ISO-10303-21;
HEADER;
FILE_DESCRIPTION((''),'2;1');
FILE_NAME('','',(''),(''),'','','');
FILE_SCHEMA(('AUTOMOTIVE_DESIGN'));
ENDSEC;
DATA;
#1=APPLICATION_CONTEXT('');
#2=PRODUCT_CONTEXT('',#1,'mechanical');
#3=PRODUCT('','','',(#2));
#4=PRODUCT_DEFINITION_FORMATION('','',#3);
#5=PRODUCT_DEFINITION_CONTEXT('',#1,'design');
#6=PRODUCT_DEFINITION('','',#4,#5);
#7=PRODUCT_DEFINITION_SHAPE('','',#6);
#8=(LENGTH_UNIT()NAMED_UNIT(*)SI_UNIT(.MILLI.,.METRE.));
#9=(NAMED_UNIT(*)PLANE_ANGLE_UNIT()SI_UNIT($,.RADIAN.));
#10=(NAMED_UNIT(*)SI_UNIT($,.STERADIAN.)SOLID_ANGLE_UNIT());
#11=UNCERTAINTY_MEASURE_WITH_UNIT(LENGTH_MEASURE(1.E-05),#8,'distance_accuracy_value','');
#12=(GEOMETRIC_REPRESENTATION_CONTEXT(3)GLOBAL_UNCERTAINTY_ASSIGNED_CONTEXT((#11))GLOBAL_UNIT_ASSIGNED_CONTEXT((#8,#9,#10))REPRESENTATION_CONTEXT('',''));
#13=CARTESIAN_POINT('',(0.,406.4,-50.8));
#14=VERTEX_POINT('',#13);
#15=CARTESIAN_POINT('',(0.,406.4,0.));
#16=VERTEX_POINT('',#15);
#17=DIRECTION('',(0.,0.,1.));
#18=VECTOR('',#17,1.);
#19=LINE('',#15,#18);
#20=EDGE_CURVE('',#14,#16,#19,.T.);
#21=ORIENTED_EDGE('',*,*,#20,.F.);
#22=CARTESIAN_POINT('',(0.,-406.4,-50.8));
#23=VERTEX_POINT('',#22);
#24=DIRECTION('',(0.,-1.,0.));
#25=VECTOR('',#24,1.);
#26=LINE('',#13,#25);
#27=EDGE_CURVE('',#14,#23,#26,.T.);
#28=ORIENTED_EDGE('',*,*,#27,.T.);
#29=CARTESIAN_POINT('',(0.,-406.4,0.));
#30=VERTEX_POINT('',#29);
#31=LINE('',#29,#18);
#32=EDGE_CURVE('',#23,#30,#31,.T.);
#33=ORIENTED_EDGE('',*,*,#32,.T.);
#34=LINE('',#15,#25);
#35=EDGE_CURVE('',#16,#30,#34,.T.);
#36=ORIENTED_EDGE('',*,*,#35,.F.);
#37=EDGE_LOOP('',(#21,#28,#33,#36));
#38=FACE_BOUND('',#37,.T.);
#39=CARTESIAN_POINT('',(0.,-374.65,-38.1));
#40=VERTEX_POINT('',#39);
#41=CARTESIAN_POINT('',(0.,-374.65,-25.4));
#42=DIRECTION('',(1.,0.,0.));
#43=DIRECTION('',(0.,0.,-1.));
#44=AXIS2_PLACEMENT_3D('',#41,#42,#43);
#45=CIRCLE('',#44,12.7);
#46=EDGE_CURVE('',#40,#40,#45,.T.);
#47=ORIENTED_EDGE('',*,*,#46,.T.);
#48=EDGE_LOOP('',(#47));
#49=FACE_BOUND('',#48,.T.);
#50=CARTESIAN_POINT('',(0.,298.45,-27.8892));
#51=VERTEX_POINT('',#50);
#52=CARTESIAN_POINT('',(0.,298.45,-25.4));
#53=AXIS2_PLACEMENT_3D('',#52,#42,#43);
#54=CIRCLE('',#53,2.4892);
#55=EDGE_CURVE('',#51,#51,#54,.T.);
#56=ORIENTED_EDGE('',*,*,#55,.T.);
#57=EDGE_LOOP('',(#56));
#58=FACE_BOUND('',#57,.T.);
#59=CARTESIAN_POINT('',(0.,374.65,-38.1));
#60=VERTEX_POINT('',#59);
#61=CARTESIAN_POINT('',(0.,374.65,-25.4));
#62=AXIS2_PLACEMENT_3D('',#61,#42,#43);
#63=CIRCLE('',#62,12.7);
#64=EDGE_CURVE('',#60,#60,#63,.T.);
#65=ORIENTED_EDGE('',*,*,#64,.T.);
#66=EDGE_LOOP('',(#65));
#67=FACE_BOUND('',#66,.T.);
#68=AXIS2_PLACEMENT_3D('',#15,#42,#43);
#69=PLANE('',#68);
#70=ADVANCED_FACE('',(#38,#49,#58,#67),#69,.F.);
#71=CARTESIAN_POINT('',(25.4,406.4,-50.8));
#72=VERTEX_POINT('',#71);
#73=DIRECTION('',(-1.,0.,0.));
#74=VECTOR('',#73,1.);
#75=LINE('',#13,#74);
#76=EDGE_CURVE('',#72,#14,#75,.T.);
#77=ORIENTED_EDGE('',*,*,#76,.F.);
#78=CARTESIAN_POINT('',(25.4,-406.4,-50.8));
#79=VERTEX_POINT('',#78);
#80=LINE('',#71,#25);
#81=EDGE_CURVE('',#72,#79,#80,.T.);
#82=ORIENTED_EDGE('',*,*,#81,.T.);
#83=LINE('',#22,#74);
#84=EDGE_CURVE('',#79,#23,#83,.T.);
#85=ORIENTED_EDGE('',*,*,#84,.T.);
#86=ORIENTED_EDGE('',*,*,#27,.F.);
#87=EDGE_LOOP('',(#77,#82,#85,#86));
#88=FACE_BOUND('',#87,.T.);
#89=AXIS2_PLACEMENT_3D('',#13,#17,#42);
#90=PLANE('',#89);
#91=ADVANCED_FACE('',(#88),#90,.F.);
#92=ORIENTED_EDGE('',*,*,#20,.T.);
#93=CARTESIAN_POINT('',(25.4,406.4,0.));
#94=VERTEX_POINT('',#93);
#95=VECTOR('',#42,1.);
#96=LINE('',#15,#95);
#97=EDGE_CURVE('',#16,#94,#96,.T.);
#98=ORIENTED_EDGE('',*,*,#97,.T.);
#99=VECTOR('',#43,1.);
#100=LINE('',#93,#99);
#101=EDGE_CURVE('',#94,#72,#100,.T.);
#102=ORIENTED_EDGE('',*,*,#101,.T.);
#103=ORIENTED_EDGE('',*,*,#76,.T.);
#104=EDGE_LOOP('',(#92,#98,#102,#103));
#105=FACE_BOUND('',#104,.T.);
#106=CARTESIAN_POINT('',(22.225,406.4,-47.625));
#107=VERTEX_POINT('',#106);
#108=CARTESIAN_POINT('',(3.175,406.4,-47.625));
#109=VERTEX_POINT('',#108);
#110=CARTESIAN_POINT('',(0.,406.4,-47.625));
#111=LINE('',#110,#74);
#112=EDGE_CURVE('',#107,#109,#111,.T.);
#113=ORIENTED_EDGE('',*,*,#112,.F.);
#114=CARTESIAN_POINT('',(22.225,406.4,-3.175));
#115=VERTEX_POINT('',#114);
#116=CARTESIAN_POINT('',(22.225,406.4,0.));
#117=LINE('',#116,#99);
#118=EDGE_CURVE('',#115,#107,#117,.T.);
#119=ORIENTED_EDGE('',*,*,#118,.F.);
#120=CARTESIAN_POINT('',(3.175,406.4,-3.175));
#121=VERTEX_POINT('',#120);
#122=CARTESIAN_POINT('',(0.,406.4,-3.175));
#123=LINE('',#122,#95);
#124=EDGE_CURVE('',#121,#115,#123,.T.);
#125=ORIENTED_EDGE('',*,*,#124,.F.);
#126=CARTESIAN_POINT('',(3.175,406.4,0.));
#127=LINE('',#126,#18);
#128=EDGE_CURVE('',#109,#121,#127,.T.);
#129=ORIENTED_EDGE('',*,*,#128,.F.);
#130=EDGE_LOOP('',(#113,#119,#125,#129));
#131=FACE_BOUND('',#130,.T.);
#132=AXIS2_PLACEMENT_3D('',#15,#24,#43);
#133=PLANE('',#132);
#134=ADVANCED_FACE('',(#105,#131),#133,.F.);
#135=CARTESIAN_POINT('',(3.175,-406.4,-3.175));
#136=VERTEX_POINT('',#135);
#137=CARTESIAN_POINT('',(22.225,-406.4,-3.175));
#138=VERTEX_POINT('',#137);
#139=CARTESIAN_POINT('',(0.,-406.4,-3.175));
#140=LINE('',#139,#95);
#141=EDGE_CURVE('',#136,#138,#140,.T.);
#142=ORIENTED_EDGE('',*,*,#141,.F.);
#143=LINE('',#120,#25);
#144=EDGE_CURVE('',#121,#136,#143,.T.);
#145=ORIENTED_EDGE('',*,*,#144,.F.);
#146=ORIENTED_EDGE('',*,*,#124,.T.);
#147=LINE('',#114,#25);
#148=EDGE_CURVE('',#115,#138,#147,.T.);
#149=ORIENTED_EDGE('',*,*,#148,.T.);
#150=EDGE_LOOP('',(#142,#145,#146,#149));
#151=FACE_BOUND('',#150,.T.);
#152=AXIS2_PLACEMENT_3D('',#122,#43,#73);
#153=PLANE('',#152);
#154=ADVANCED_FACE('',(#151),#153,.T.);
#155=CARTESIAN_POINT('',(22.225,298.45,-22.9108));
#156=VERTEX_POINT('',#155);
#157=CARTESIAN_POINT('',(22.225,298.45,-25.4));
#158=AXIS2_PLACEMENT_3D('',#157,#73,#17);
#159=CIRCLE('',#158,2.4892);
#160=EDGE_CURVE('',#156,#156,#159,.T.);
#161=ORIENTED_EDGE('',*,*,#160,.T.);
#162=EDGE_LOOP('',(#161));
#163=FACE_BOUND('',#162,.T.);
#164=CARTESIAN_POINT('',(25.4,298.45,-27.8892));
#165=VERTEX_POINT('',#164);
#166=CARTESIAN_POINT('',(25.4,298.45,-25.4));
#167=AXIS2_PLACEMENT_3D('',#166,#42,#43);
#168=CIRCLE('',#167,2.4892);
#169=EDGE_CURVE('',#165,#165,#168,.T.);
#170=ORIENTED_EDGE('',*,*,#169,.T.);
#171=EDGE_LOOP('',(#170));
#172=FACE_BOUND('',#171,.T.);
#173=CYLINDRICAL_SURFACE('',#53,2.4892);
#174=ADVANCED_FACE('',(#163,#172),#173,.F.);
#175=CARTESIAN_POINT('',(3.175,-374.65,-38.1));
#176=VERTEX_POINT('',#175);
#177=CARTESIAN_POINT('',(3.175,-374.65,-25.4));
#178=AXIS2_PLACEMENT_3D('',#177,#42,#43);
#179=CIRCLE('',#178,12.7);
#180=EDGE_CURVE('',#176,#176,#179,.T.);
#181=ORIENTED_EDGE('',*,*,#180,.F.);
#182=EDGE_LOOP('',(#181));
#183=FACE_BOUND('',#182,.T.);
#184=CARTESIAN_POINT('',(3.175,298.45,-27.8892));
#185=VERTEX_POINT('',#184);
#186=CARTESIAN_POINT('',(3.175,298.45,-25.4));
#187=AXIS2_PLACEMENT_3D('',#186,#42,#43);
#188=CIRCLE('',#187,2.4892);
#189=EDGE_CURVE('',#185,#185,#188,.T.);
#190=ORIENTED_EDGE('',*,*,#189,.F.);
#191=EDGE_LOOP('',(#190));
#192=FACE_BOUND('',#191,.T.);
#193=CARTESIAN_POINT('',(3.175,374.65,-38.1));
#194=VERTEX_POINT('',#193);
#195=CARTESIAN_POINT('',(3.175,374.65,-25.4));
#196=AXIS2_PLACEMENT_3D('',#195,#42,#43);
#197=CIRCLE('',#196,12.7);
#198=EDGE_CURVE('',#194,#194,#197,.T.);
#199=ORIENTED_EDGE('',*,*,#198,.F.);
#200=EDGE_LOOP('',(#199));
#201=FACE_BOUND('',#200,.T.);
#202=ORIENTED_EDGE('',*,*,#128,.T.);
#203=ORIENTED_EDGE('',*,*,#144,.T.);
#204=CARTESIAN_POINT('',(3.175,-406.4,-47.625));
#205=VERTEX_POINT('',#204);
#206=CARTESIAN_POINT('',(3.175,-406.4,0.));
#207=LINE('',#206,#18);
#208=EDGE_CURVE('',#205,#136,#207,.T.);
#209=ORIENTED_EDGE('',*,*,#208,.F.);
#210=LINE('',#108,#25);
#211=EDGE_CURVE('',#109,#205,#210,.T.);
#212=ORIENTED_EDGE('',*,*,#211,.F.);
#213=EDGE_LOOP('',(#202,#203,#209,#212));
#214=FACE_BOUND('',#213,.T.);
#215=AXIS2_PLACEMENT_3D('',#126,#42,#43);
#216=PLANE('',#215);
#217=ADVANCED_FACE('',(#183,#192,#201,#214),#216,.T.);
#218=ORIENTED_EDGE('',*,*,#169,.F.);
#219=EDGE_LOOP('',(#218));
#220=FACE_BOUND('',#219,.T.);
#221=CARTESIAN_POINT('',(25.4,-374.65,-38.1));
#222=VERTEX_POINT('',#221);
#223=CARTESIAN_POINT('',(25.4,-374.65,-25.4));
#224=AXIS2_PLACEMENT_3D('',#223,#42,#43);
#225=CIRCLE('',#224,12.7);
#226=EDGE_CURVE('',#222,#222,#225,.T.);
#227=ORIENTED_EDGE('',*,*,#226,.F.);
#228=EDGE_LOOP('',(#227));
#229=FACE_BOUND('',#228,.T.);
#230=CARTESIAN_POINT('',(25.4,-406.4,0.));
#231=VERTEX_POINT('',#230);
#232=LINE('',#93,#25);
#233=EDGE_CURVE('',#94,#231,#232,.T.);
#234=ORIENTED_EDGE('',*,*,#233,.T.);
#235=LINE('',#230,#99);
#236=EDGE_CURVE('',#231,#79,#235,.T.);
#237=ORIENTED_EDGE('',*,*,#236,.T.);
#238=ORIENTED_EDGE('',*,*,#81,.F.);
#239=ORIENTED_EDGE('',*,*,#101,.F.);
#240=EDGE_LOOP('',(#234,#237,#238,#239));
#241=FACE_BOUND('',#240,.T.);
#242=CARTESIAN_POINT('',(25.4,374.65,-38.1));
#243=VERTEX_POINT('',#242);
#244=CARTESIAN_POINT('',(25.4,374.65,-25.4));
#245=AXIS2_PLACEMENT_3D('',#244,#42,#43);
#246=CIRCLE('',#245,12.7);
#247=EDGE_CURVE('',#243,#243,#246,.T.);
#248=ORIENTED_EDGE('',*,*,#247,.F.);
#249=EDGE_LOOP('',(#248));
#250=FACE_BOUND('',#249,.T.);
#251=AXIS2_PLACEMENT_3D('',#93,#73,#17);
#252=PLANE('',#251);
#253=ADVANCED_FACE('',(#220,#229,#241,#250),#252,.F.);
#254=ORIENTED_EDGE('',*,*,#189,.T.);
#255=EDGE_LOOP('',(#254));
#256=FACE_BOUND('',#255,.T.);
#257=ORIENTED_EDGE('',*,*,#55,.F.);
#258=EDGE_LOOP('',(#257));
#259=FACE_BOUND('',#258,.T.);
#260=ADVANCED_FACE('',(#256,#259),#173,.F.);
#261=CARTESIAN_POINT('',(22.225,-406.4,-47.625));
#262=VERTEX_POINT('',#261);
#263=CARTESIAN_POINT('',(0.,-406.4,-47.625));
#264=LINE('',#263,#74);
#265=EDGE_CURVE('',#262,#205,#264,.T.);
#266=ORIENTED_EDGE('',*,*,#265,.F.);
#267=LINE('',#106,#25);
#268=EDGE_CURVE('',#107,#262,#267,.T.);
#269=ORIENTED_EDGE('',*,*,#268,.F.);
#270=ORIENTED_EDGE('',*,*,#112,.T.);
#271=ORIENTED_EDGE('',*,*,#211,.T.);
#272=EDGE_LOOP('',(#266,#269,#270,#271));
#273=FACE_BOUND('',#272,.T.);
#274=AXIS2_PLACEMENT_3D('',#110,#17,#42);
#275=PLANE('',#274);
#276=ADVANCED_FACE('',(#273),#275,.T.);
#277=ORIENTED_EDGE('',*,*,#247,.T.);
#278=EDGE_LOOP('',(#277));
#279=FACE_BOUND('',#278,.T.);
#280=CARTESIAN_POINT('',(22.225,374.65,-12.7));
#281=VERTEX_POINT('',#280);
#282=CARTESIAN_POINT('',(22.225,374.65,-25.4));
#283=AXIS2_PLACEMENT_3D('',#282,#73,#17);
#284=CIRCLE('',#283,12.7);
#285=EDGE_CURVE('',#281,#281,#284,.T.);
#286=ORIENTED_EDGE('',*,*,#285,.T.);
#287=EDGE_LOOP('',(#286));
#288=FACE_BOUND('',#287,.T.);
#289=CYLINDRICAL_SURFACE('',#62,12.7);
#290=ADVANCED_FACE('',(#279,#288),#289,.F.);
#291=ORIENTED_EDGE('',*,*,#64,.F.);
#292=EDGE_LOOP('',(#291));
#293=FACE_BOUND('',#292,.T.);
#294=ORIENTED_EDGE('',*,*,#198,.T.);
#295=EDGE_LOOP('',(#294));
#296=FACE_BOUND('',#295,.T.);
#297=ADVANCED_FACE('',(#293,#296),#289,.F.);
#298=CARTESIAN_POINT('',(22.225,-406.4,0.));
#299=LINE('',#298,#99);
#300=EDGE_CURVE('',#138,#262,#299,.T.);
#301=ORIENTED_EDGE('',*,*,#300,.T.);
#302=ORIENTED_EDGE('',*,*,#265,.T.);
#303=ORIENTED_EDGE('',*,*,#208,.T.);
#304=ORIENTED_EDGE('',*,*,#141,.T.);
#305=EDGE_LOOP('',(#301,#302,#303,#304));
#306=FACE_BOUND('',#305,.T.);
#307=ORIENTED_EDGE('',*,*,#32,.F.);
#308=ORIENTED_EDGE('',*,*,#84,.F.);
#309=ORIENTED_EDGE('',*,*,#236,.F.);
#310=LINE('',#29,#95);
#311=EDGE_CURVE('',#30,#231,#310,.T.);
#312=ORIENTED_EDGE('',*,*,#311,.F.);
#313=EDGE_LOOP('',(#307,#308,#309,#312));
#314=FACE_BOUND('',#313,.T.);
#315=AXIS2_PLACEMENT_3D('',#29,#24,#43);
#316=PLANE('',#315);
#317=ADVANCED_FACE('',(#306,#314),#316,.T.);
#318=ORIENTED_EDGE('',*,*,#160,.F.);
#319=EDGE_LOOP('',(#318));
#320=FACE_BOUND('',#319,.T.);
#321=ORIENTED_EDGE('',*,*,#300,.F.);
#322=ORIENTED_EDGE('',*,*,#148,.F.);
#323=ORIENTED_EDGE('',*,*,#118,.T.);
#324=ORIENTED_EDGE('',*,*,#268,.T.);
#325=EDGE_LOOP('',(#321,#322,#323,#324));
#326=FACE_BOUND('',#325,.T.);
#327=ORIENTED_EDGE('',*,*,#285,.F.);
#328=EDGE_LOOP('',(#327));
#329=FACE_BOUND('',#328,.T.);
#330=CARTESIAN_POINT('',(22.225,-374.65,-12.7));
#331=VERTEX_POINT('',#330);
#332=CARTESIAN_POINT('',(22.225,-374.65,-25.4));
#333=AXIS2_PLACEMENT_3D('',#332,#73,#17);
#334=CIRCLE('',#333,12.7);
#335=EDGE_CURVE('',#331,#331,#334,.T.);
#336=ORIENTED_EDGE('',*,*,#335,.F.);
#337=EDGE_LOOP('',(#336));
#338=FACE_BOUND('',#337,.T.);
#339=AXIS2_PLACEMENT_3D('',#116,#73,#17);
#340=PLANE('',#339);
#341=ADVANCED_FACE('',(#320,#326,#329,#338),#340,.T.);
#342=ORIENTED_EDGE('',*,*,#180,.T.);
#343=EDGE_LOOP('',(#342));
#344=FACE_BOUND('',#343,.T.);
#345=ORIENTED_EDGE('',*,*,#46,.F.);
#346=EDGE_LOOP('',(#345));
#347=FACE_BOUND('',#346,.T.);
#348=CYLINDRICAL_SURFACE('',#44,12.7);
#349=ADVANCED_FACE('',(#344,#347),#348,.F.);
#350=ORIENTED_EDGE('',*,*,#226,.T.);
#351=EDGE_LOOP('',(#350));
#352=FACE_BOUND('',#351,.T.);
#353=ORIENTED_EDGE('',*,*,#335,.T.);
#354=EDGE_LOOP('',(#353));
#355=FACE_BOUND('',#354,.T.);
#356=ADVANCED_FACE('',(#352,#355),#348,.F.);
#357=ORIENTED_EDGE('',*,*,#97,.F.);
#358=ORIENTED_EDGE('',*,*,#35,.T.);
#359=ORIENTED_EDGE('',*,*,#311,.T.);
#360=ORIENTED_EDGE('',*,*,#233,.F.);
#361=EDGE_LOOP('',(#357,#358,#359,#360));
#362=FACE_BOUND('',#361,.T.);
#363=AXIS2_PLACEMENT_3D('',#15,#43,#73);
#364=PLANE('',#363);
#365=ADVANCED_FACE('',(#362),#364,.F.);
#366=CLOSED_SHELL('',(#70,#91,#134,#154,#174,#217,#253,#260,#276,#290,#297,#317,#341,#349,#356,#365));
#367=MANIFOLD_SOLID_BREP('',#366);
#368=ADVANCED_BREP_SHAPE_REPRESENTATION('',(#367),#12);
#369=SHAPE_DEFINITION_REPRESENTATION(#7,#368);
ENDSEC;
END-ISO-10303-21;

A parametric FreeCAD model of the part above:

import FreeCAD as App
import Part
import Sketcher
from FreeCAD import Vector
Q = App.Units.Quantity


def faces_at(feature, points):
    """Names of the faces that lie closest to the given points."""
    faces = feature.Shape.Faces
    near = lambda p: min(range(len(faces)), key=lambda i: faces[i].distToShape(Part.Vertex(*p))[0])
    return sorted({f"Face{near(p) + 1}" for p in points})

doc = App.newDocument("Part")
body = doc.addObject("PartDesign::Body", "Body")

# Sketch on XZ plane
sketch1 = body.newObject("Sketcher::SketchObject", "Sketch")
sketch1.AttachmentSupport = (doc.getObject("XZ_Plane"), [""])
sketch1.MapMode = "FlatFace"
sketch1.addGeometry(Part.LineSegment(Vector(0, -50.8, 0), Vector(0, 0, 0)), False)
sketch1.addGeometry(Part.LineSegment(Vector(0, 0, 0), Vector(25.4, 0, 0)), False)
sketch1.addGeometry(Part.LineSegment(Vector(25.4, 0, 0), Vector(25.4, -50.8, 0)), False)
sketch1.addGeometry(Part.LineSegment(Vector(25.4, -50.8, 0), Vector(0, -50.8, 0)), False)
sketch1.addConstraint(Sketcher.Constraint("Coincident", 0, 2, 1, 1))
sketch1.addConstraint(Sketcher.Constraint("Coincident", 1, 2, 2, 1))
sketch1.addConstraint(Sketcher.Constraint("Coincident", 2, 2, 3, 1))
sketch1.addConstraint(Sketcher.Constraint("Coincident", 3, 2, 0, 1))
sketch1.addConstraint(Sketcher.Constraint("Vertical", 0))
sketch1.addConstraint(Sketcher.Constraint("Horizontal", 1))
sketch1.addConstraint(Sketcher.Constraint("Vertical", 2))
sketch1.addConstraint(Sketcher.Constraint("Horizontal", 3))
sketch1.addConstraint(Sketcher.Constraint("Coincident", 0, 2, -1, 1))
sketch1.addConstraint(Sketcher.Constraint("DistanceX", 1, 1, 1, 2, Q("1 in")))
sketch1.addConstraint(Sketcher.Constraint("DistanceY", 0, 1, 0, 2, Q("2 in")))
pad1 = body.newObject("PartDesign::Pad", "Pad")
pad1.Profile = sketch1
pad1.Length = Q("32 in")
pad1.Midplane = True
doc.recompute()

thickness = body.newObject("PartDesign::Thickness", "Thickness")
thickness.Base = (pad1, faces_at(pad1, [(12.7, 406.4, -25.4), (12.7, -406.4, -25.4)]))
thickness.Value = Q("0.125 in")
thickness.Reversed = True
thickness.Join = "Intersection"

# Sketch on YZ plane
sketch2 = body.newObject("Sketcher::SketchObject", "Sketch001")
sketch2.AttachmentSupport = (doc.getObject("YZ_Plane"), [""])
sketch2.MapMode = "FlatFace"
sketch2.AttachmentOffset = App.Placement(Vector(0, 0, 1 * 25.4), App.Rotation())
sketch2.addGeometry(Part.Circle(Vector(374.65, -25.4, 0), Vector(0, 0, 1), 12.7), False)
sketch2.addGeometry(Part.Circle(Vector(-374.65, -25.4, 0), Vector(0, 0, 1), 12.7), False)
sketch2.addGeometry(Part.Circle(Vector(298.45, -25.4, 0), Vector(0, 0, 1), 2.4892), False)
sketch2.addConstraint(Sketcher.Constraint("Equal", 0, 1))
sketch2.addConstraint(Sketcher.Constraint("Symmetric", 0, 3, 1, 3, -2))
sketch2.addConstraint(Sketcher.Constraint("Horizontal", 1, 3, 2, 3))
sketch2.addConstraint(Sketcher.Constraint("Diameter", 0, Q("1 in")))
sketch2.addConstraint(Sketcher.Constraint("Diameter", 2, Q("0.196 in")))
sketch2.addConstraint(Sketcher.Constraint("DistanceY", 0, 3, -1, 1, Q("1 in")))
sketch2.addConstraint(Sketcher.Constraint("DistanceX", 2, 3, 0, 3, Q("3 in")))
sketch2.addConstraint(Sketcher.Constraint("DistanceX", 1, 3, 0, 3, Q("29.5 in")))
pocket1 = body.newObject("PartDesign::Pocket", "Pocket")
pocket1.Profile = sketch2
pocket1.Type = "ThroughAll"

doc.recompute()
